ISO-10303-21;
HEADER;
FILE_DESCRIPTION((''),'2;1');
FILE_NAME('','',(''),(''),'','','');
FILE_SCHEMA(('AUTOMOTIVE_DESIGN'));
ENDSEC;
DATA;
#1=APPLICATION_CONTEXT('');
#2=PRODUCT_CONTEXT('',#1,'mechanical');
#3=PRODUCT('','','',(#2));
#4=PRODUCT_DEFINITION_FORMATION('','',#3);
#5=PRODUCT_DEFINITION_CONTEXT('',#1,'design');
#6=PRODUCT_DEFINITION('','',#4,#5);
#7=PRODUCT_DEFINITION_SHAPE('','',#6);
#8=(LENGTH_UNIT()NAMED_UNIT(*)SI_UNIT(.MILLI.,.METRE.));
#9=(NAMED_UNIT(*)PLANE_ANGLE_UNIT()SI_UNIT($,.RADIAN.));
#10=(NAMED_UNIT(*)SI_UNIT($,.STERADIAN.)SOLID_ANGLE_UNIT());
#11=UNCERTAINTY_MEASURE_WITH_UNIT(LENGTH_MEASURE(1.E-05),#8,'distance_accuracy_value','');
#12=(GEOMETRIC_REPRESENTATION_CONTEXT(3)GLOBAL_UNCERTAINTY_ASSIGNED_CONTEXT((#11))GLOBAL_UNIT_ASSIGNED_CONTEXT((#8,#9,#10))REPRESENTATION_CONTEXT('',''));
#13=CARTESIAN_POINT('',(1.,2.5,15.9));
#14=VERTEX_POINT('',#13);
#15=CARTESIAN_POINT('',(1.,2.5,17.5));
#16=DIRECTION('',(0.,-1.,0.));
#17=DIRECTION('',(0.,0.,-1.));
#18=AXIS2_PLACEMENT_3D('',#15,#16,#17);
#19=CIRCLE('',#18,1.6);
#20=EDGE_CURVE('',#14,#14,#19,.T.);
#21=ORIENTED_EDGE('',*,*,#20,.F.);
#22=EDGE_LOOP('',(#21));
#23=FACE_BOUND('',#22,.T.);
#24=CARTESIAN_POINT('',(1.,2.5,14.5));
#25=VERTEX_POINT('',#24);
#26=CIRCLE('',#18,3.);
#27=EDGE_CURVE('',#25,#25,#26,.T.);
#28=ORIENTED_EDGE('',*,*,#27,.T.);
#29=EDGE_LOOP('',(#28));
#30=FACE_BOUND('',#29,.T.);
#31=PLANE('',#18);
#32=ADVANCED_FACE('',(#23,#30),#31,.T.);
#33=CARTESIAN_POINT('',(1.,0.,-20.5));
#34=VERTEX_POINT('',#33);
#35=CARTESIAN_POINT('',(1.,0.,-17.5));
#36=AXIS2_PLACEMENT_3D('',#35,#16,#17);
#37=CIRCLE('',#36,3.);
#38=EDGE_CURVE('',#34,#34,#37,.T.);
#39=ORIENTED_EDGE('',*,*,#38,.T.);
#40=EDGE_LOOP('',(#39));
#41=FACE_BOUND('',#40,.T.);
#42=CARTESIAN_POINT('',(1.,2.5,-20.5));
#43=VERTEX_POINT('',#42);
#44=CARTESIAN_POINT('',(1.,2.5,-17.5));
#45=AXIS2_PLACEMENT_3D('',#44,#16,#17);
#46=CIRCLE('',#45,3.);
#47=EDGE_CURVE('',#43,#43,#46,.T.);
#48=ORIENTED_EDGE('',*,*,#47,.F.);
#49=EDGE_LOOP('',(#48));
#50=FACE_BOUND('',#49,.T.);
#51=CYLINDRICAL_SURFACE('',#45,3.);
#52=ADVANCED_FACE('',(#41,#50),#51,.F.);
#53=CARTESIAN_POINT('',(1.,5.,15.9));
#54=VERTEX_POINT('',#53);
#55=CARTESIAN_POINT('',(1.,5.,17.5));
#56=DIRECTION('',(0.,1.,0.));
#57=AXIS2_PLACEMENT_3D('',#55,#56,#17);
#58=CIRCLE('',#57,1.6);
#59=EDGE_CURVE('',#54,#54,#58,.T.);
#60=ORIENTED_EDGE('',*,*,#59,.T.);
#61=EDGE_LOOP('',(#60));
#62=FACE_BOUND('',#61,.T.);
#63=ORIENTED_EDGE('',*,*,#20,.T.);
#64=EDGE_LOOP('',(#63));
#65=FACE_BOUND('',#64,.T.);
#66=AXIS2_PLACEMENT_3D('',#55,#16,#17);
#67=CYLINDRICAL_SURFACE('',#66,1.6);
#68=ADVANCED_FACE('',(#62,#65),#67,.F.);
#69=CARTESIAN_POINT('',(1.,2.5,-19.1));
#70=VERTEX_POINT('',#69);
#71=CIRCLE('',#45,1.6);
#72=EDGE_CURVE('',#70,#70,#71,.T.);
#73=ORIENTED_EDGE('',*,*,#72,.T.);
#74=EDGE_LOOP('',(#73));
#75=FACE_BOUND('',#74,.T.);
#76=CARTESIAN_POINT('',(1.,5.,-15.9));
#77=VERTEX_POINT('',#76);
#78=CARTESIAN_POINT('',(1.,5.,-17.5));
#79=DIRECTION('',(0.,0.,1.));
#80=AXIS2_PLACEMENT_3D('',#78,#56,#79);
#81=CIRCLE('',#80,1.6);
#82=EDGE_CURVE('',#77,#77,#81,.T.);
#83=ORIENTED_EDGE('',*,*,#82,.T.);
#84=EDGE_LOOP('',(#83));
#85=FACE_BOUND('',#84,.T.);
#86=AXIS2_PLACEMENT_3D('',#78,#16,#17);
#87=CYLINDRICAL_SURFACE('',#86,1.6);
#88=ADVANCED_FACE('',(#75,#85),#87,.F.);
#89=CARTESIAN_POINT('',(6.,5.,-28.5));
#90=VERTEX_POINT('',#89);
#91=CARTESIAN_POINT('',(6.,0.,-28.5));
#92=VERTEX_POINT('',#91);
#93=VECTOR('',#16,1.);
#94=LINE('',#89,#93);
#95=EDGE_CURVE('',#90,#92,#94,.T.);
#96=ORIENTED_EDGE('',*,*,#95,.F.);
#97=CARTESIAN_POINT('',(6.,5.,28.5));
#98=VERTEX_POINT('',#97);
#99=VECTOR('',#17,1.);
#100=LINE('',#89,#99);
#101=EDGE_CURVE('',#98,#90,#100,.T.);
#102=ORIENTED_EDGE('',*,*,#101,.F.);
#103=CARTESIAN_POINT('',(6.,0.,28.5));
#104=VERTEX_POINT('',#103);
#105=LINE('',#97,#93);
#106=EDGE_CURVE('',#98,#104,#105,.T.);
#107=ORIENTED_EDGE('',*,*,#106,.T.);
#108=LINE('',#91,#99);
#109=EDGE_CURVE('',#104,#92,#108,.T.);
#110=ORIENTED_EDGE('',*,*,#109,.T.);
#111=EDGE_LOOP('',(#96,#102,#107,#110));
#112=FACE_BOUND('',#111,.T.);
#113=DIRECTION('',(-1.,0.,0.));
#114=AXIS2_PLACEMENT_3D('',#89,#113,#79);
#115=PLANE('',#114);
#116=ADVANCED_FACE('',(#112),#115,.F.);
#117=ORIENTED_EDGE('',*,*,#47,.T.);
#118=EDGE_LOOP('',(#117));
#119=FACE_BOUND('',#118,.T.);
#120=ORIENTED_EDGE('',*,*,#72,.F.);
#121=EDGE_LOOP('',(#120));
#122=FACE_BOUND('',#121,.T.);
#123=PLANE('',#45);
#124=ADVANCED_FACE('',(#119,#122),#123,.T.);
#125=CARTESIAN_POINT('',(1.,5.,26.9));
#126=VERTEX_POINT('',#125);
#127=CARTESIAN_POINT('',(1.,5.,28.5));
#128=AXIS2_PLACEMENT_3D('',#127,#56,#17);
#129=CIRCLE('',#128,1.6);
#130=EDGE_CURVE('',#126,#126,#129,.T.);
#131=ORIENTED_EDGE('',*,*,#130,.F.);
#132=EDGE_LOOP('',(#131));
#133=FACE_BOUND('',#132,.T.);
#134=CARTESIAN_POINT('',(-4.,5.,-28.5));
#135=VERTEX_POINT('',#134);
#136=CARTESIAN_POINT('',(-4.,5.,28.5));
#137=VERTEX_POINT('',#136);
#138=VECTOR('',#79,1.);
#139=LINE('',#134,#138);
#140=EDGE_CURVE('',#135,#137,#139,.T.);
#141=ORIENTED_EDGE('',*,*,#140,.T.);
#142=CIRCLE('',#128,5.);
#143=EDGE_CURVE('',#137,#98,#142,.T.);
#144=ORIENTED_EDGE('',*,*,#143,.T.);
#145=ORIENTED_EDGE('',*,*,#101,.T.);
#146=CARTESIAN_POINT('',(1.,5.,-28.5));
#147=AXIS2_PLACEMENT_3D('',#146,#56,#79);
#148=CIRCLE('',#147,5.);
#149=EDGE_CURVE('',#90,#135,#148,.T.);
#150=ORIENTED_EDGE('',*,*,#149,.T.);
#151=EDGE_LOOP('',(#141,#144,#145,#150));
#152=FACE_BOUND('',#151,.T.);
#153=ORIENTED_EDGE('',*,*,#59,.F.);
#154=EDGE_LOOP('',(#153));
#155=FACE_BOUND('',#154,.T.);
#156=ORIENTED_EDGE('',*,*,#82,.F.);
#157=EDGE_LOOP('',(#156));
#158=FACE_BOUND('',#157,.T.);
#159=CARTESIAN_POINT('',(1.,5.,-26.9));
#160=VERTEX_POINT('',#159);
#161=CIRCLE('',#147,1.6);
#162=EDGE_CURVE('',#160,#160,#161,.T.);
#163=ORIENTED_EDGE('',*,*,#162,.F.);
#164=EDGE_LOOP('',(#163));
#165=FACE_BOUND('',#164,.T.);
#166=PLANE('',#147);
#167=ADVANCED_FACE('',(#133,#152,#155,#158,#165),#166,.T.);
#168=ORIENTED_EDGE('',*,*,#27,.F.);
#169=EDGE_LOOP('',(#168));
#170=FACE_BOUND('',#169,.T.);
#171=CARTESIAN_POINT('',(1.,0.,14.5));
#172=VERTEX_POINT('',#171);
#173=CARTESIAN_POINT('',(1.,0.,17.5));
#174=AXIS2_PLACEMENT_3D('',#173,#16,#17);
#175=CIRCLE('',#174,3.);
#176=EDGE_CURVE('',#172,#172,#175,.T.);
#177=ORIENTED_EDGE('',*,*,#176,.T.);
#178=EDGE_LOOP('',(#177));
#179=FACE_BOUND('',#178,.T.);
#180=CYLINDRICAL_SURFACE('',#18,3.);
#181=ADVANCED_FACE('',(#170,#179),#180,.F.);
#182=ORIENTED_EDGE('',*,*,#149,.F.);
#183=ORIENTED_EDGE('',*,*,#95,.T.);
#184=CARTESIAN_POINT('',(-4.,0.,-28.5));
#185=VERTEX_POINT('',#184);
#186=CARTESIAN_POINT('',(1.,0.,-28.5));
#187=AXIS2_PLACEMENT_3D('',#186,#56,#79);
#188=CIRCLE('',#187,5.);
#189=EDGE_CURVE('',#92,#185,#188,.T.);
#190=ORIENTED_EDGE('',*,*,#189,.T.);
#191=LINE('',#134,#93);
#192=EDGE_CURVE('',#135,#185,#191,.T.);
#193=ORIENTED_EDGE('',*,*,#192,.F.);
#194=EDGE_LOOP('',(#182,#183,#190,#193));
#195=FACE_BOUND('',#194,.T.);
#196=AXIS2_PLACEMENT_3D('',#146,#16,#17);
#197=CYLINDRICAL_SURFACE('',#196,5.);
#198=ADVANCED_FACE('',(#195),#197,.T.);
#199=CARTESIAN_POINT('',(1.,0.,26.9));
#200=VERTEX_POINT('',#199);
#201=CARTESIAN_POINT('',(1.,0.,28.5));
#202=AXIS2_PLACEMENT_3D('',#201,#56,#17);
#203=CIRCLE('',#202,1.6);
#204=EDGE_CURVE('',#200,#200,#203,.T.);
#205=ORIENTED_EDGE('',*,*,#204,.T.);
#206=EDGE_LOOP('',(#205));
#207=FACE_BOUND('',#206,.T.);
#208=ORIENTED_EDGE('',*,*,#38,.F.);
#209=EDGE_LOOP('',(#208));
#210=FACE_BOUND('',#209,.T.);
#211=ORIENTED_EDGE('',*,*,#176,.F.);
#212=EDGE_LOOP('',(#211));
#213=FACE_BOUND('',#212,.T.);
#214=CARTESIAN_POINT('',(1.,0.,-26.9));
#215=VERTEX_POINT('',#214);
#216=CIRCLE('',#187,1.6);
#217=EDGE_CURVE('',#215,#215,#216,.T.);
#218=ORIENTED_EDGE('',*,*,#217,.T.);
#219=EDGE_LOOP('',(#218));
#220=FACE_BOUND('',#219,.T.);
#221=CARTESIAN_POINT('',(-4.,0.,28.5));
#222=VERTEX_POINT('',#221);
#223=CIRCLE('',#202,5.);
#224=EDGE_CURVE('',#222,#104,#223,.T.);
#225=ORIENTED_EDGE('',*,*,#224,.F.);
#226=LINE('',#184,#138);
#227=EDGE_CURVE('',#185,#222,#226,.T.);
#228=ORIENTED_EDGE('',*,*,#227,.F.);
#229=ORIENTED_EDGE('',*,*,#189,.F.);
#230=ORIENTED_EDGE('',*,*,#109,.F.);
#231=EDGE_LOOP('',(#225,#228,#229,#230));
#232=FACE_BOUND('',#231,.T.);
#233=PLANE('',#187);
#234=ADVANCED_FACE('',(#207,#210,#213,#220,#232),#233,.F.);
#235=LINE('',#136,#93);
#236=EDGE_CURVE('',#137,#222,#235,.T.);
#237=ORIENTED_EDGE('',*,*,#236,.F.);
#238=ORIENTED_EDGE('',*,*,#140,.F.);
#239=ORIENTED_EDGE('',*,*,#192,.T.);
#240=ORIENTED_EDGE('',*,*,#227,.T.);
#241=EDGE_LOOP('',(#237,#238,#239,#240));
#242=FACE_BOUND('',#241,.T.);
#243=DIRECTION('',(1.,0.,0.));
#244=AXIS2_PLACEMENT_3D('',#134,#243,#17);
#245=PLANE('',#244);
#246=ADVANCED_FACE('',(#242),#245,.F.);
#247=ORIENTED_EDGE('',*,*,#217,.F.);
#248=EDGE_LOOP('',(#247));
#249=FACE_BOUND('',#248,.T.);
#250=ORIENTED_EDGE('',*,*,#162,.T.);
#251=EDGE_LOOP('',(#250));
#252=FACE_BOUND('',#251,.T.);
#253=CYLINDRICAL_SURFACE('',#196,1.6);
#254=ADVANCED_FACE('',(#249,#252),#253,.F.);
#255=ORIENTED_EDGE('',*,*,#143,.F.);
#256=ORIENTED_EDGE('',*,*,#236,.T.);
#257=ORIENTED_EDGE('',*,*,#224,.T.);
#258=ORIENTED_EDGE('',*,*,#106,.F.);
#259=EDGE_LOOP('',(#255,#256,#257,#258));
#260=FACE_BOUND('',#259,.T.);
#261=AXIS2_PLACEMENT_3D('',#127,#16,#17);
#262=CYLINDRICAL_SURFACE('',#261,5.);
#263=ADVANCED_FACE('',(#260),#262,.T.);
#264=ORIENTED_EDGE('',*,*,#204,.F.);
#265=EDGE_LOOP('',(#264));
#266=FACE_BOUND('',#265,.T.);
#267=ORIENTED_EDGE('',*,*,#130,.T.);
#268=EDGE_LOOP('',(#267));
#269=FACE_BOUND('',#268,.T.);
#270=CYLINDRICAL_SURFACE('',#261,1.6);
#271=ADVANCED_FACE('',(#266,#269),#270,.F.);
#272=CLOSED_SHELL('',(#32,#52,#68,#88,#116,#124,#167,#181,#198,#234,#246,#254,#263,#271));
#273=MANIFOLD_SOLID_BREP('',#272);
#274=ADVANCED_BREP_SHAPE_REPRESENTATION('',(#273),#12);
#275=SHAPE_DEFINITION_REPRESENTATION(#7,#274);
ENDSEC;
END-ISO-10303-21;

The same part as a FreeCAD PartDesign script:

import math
import FreeCAD as App
import Part
import Sketcher

V = App.Vector
Q = App.Units.Quantity

doc = App.newDocument("Part")
body = doc.addObject("PartDesign::Body", "Body")

# Sketch on XZ plane
sketch1 = doc.addObject("Sketcher::SketchObject", "Sketch")
body.addObject(sketch1)
sketch1.AttachmentSupport = (doc.XZ_Plane, [""])
sketch1.MapMode = "FlatFace"
sketch1.addGeometry(Part.LineSegment(V(-4, -28.5, 0), V(-4, 28.5, 0)), False)
sketch1.addGeometry(Part.ArcOfCircle(Part.Circle(V(1, 28.5, 0), V(0, 0, 1), 5), math.radians(0), math.radians(180)), False)
sketch1.addGeometry(Part.LineSegment(V(6, 28.5, 0), V(6, -28.5, 0)), False)
sketch1.addGeometry(Part.ArcOfCircle(Part.Circle(V(1, -28.5, 0), V(0, 0, 1), 5), math.radians(180), math.radians(360)), False)
sketch1.addGeometry(Part.Circle(V(1, 28.5, 0), V(0, 0, 1), 1.6), False)
sketch1.addGeometry(Part.Circle(V(1, 17.5, 0), V(0, 0, 1), 1.6), False)
sketch1.addGeometry(Part.Circle(V(1, -17.5, 0), V(0, 0, 1), 1.6), False)
sketch1.addGeometry(Part.Circle(V(1, -28.5, 0), V(0, 0, 1), 1.6), False)
sketch1.addConstraint(Sketcher.Constraint("Tangent", 0, 2, 1, 2))
sketch1.addConstraint(Sketcher.Constraint("Tangent", 1, 1, 2, 1))
sketch1.addConstraint(Sketcher.Constraint("Tangent", 2, 2, 3, 2))
sketch1.addConstraint(Sketcher.Constraint("Tangent", 3, 1, 0, 1))
sketch1.addConstraint(Sketcher.Constraint("Vertical", 0))
sketch1.addConstraint(Sketcher.Constraint("Vertical", 2))
sketch1.addConstraint(Sketcher.Constraint("Coincident", 4, 3, 1, 3))
sketch1.addConstraint(Sketcher.Constraint("Coincident", 7, 3, 3, 3))
sketch1.addConstraint(Sketcher.Constraint("Equal", 4, 5))
sketch1.addConstraint(Sketcher.Constraint("Equal", 5, 6))
sketch1.addConstraint(Sketcher.Constraint("Equal", 6, 7))
sketch1.addConstraint(Sketcher.Constraint("Symmetric", 5, 3, 6, 3, -1))
sketch1.addConstraint(Sketcher.Constraint("Vertical", 4, 3, 5, 3))
sketch1.addConstraint(Sketcher.Constraint("Radius", 1, Q("5 mm")))
sketch1.addConstraint(Sketcher.Constraint("Diameter", 4, Q("3.2 mm")))
sketch1.addConstraint(Sketcher.Constraint("DistanceY", 0, 1, 0, 2, Q("57 mm")))
sketch1.addConstraint(Sketcher.Constraint("DistanceX", -1, 1, 1, 3, Q("1 mm")))
sketch1.addConstraint(Sketcher.Constraint("DistanceY", 5, 3, 1, 3, Q("11 mm")))
sketch1.addConstraint(Sketcher.Constraint("DistanceY", 3, 3, 6, 3, Q("11 mm")))
pad1 = doc.addObject("PartDesign::Pad", "Pad")
body.addObject(pad1)
pad1.Profile = sketch1
pad1.Length = 5
pad1.Reversed = True

# Sketch on XZ plane
sketch2 = doc.addObject("Sketcher::SketchObject", "Sketch001")
body.addObject(sketch2)
sketch2.AttachmentSupport = (doc.XZ_Plane, [""])
sketch2.MapMode = "FlatFace"
sketch2.addGeometry(Part.Circle(V(1, 17.5, 0), V(0, 0, 1), 3), False)
sketch2.addGeometry(Part.Circle(V(1, -17.5, 0), V(0, 0, 1), 3), False)
sketch2.addConstraint(Sketcher.Constraint("Equal", 0, 1))
sketch2.addConstraint(Sketcher.Constraint("Symmetric", 0, 3, 1, 3, -1))
sketch2.addConstraint(Sketcher.Constraint("Diameter", 0, Q("6 mm")))
sketch2.addConstraint(Sketcher.Constraint("DistanceX", -1, 1, 0, 3, Q("1 mm")))
sketch2.addConstraint(Sketcher.Constraint("DistanceY", 1, 3, 0, 3, Q("35 mm")))
pocket1 = doc.addObject("PartDesign::Pocket", "Pocket")
body.addObject(pocket1)
pocket1.Profile = sketch2
pocket1.Length = 2.5

doc.recompute()
